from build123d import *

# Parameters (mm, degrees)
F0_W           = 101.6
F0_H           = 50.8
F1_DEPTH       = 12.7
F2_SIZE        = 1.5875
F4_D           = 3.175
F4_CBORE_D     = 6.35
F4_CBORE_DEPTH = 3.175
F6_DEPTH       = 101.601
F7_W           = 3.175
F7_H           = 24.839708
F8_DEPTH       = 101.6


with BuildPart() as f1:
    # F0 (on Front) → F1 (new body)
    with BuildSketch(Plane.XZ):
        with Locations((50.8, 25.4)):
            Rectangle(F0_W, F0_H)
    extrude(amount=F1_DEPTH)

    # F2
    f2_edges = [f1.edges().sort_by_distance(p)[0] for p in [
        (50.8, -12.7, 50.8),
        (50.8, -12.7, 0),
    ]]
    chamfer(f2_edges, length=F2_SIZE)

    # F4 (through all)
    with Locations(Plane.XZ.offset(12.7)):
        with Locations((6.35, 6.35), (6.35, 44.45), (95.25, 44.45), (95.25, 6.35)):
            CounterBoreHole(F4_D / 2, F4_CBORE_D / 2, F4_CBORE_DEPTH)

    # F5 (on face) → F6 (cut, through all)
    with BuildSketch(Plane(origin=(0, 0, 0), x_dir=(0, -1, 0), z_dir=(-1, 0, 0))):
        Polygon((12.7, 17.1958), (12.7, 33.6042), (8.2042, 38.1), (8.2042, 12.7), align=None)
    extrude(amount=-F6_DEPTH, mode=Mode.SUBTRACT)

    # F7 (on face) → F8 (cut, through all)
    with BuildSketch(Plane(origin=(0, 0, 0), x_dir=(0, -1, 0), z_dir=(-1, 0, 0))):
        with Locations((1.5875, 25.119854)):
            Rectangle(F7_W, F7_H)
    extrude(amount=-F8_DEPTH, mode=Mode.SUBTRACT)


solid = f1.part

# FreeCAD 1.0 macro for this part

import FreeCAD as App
import Part
import Sketcher
Q = App.Units.Quantity


def edges_at(feature, points):
    """Names of the edges that pass closest to the given points."""
    edges = feature.Shape.Edges
    near = lambda p: min(range(len(edges)), key=lambda i: edges[i].distToShape(Part.Vertex(*p))[0])
    return sorted({f"Edge{near(p) + 1}" for p in points})

doc = App.newDocument("Part")
body = doc.addObject("PartDesign::Body", "Body")

sketch1 = doc.addObject("Sketcher::SketchObject", "Sketch")
body.addObject(sketch1)
sketch1.AttachmentSupport = (doc.XZ_Plane, [""])
sketch1.MapMode = "FlatFace"
sketch1.addGeometry([
    Part.LineSegment(App.Vector(0, 51, 0), App.Vector(0, 0, 0)),
    Part.LineSegment(App.Vector(0, 0, 0), App.Vector(102, 0, 0)),
    Part.LineSegment(App.Vector(102, 0, 0), App.Vector(102, 51, 0)),
    Part.LineSegment(App.Vector(102, 51, 0), App.Vector(0, 51, 0)),
], False)
sketch1.addConstraint([
    Sketcher.Constraint("Coincident", 0, 2, 1, 1),
    Sketcher.Constraint("Coincident", 1, 2, 2, 1),
    Sketcher.Constraint("Coincident", 2, 2, 3, 1),
    Sketcher.Constraint("Coincident", 3, 2, 0, 1),
    Sketcher.Constraint("Vertical", 0),
    Sketcher.Constraint("Horizontal", 1),
    Sketcher.Constraint("Vertical", 2),
    Sketcher.Constraint("Horizontal", 3),
    Sketcher.Constraint("Coincident", 0, 2, -1, 1),
    Sketcher.Constraint("DistanceX", 1, 1, 1, 2, Q("4 in")),
    Sketcher.Constraint("DistanceY", 0, 2, 0, 1, Q("2 in")),
])
pad1 = doc.addObject("PartDesign::Pad", "Pad")
body.addObject(pad1)
pad1.Profile = sketch1
pad1.Length = Q("0.5 in")
doc.recompute()

chamfer = doc.addObject("PartDesign::Chamfer", "Chamfer")
body.addObject(chamfer)
chamfer.Base = (pad1, edges_at(pad1, [(50.8, -12.7, 50.8), (50.8, -12.7, 0)]))
chamfer.Size = Q("0.0625 in")

sketch2 = doc.addObject("Sketcher::SketchObject", "Sketch001")
body.addObject(sketch2)
sketch2.AttachmentSupport = (doc.XZ_Plane, [""])
sketch2.MapMode = "FlatFace"
sketch2.AttachmentOffset = App.Placement(App.Vector(0, 0, 0.5 * 25.4), App.Rotation())
sketch2.addGeometry([
    Part.Circle(App.Vector(6.3, 6.3, 0), App.Vector(0, 0, 1), 1.6),
    Part.Circle(App.Vector(6.3, 44.5, 0), App.Vector(0, 0, 1), 1.6),
    Part.Circle(App.Vector(95.2, 44.5, 0), App.Vector(0, 0, 1), 1.6),
    Part.Circle(App.Vector(95.2, 6.3, 0), App.Vector(0, 0, 1), 1.6),
], False)
sketch2.addConstraint([
    Sketcher.Constraint("Equal", 0, 1),
    Sketcher.Constraint("Equal", 1, 2),
    Sketcher.Constraint("Equal", 2, 3),
    Sketcher.Constraint("Horizontal", 1, 3, 2, 3),
    Sketcher.Constraint("Horizontal", 0, 3, 3, 3),
    Sketcher.Constraint("Vertical", 0, 3, 1, 3),
    Sketcher.Constraint("Vertical", 2, 3, 3, 3),
    Sketcher.Constraint("Diameter", 0, Q("0.125 in")),
    Sketcher.Constraint("DistanceY", 0, 3, 1, 3, Q("1.5 in")),
    Sketcher.Constraint("DistanceX", 1, 3, 2, 3, Q("3.5 in")),
    Sketcher.Constraint("DistanceX", -1, 1, 0, 3, Q("0.25 in")),
    Sketcher.Constraint("DistanceY", -1, 1, 0, 3, Q("0.25 in")),
])
doc.recompute()
hole = doc.addObject("PartDesign::Hole", "Hole")
body.addObject(hole)
hole.Profile = sketch2
hole.ThreadType = "None"
hole.Diameter = Q("0.125 in")
hole.DepthType = "ThroughAll"
hole.HoleCutType = "Counterbore"
hole.HoleCutDiameter = Q("0.25 in")
hole.HoleCutDepth = Q("0.125 in")

sketch3 = doc.addObject("Sketcher::SketchObject", "Sketch002")
body.addObject(sketch3)
sketch3.AttachmentSupport = (doc.YZ_Plane, [""])
sketch3.MapMode = "FlatFace"
sketch3.addGeometry([
    Part.LineSegment(App.Vector(-13, 17, 0), App.Vector(-13, 34, 0)),
    Part.LineSegment(App.Vector(-13, 34, 0), App.Vector(-8, 38, 0)),
    Part.LineSegment(App.Vector(-8, 38, 0), App.Vector(-8, 13, 0)),
    Part.LineSegment(App.Vector(-8, 13, 0), App.Vector(-13, 17, 0)),
], False)
sketch3.addConstraint([
    Sketcher.Constraint("Coincident", 0, 2, 1, 1),
    Sketcher.Constraint("Coincident", 1, 2, 2, 1),
    Sketcher.Constraint("Coincident", 2, 2, 3, 1),
    Sketcher.Constraint("Coincident", 3, 2, 0, 1),
    Sketcher.Constraint("Vertical", 0),
    Sketcher.Constraint("Vertical", 2),
    Sketcher.Constraint("Perpendicular", 1, 3),
    Sketcher.Constraint("Equal", 1, 3),
    Sketcher.Constraint("DistanceY", 2, 2, 2, 1, Q("1 in")),
    Sketcher.Constraint("DistanceX", 0, 2, -1, 1, Q("0.5 in")),
    Sketcher.Constraint("DistanceY", -1, 1, 1, 2, Q("1.5 in")),
    Sketcher.Constraint("DistanceY", 0, 1, 0, 2, Q("0.646 in")),
])
pocket1 = doc.addObject("PartDesign::Pocket", "Pocket")
body.addObject(pocket1)
pocket1.Profile = sketch3
pocket1.Type = "ThroughAll"
pocket1.Reversed = True

sketch4 = doc.addObject("Sketcher::SketchObject", "Sketch003")
body.addObject(sketch4)
sketch4.AttachmentSupport = (doc.YZ_Plane, [""])
sketch4.MapMode = "FlatFace"
sketch4.addGeometry([
    Part.LineSegment(App.Vector(0, 37.5, 0), App.Vector(0, 12.7, 0)),
    Part.LineSegment(App.Vector(0, 12.7, 0), App.Vector(-3.2, 12.7, 0)),
    Part.LineSegment(App.Vector(-3.2, 12.7, 0), App.Vector(-3.2, 37.5, 0)),
    Part.LineSegment(App.Vector(-3.2, 37.5, 0), App.Vector(0, 37.5, 0)),
], False)
sketch4.addConstraint([
    Sketcher.Constraint("Coincident", 0, 2, 1, 1),
    Sketcher.Constraint("Coincident", 1, 2, 2, 1),
    Sketcher.Constraint("Coincident", 2, 2, 3, 1),
    Sketcher.Constraint("Coincident", 3, 2, 0, 1),
    Sketcher.Constraint("Vertical", 0),
    Sketcher.Constraint("Horizontal", 1),
    Sketcher.Constraint("Vertical", 2),
    Sketcher.Constraint("Horizontal", 3),
    Sketcher.Constraint("PointOnObject", 0, 2, -2),
    Sketcher.Constraint("DistanceY", -1, 1, 0, 2, Q("0.5 in")),
    Sketcher.Constraint("DistanceX", 1, 2, 1, 1, Q("0.125 in")),
    Sketcher.Constraint("DistanceY", 0, 2, 0, 1, 24.839708),
])
pocket2 = doc.addObject("PartDesign::Pocket", "Pocket001")
body.addObject(pocket2)
pocket2.Profile = sketch4
pocket2.Type = "ThroughAll"
pocket2.Reversed = True

doc.recompute()
